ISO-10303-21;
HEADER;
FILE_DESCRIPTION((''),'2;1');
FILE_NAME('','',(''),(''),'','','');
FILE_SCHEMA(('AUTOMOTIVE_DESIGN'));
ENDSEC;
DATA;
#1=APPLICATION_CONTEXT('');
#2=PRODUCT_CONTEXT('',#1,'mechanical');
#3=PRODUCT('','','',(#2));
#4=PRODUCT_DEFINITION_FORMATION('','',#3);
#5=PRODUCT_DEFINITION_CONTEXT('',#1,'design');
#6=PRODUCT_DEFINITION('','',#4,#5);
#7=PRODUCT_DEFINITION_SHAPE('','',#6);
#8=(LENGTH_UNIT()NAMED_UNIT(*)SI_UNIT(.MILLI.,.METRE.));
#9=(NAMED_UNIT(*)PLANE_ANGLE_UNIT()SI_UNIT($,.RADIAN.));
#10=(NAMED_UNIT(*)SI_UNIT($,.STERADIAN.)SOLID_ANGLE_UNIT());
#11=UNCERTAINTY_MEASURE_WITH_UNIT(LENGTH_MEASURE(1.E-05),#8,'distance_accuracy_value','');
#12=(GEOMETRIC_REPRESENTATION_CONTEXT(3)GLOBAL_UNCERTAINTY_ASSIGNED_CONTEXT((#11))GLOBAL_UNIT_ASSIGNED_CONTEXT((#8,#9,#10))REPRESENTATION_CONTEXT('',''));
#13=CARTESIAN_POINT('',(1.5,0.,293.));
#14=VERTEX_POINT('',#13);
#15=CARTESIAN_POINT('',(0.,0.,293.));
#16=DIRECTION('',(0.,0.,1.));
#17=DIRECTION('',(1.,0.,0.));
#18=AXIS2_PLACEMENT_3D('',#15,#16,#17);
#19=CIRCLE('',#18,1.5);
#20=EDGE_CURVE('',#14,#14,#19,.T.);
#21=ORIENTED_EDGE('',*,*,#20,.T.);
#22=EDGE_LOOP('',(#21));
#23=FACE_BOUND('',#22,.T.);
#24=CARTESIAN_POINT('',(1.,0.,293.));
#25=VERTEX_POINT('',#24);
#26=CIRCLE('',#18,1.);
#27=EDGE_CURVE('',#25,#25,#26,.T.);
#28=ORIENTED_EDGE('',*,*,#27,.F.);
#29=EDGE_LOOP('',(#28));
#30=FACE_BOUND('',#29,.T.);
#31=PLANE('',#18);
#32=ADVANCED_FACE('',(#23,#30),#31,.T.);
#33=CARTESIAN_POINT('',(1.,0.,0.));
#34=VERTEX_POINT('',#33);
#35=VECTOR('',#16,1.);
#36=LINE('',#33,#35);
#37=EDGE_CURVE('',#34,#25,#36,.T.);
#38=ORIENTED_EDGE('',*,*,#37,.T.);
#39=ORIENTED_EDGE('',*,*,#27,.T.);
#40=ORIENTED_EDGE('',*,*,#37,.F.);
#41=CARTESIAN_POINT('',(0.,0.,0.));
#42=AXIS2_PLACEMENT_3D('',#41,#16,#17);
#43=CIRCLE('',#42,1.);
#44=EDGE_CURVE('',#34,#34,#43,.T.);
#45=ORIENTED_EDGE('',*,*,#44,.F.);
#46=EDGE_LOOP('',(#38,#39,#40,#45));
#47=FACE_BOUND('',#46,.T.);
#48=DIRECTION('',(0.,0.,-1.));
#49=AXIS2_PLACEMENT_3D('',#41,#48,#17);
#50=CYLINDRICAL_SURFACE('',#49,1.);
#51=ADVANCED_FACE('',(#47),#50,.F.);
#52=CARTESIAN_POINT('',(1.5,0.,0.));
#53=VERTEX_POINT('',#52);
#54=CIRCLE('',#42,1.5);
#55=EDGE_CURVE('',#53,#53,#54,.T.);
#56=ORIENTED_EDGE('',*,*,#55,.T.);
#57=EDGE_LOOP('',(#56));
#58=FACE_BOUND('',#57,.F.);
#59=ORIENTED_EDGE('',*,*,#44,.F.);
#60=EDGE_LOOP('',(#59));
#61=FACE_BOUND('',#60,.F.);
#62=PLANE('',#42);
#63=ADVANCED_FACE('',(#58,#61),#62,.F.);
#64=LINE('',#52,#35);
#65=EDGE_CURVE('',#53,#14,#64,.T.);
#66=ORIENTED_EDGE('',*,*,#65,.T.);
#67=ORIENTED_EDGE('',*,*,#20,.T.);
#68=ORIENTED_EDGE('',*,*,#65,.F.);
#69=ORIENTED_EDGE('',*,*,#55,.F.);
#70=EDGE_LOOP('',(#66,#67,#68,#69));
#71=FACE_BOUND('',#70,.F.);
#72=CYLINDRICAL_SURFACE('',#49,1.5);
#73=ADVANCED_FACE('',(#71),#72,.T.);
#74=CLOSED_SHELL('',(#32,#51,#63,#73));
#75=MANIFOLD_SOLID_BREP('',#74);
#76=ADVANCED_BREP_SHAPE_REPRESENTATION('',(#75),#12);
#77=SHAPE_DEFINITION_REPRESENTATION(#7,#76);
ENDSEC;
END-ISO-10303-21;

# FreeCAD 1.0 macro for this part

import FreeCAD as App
import Part
import Sketcher
from FreeCAD import Vector
Q = App.Units.Quantity

doc = App.newDocument("Part")
body = doc.addObject("PartDesign::Body", "Body")

# Sketch on XY plane
sketch1 = body.newObject("Sketcher::SketchObject", "Sketch")
sketch1.AttachmentSupport = (doc.getObject("XY_Plane"), [""])
sketch1.MapMode = "FlatFace"
sketch1.addGeometry(Part.Circle(Vector(0, 0, 0), Vector(0, 0, 1), 1.5), False)
sketch1.addGeometry(Part.Circle(Vector(0, 0, 0), Vector(0, 0, 1), 1), False)
sketch1.addConstraint(Sketcher.Constraint("Coincident", 0, 3, -1, 1))
sketch1.addConstraint(Sketcher.Constraint("Coincident", 1, 3, -1, 1))
sketch1.addConstraint(Sketcher.Constraint("Diameter", 0, Q("3 mm")))
sketch1.addConstraint(Sketcher.Constraint("Diameter", 1, Q("2 mm")))
pad1 = body.newObject("PartDesign::Pad", "Pad")
pad1.Profile = sketch1
pad1.Length = 293

doc.recompute()
